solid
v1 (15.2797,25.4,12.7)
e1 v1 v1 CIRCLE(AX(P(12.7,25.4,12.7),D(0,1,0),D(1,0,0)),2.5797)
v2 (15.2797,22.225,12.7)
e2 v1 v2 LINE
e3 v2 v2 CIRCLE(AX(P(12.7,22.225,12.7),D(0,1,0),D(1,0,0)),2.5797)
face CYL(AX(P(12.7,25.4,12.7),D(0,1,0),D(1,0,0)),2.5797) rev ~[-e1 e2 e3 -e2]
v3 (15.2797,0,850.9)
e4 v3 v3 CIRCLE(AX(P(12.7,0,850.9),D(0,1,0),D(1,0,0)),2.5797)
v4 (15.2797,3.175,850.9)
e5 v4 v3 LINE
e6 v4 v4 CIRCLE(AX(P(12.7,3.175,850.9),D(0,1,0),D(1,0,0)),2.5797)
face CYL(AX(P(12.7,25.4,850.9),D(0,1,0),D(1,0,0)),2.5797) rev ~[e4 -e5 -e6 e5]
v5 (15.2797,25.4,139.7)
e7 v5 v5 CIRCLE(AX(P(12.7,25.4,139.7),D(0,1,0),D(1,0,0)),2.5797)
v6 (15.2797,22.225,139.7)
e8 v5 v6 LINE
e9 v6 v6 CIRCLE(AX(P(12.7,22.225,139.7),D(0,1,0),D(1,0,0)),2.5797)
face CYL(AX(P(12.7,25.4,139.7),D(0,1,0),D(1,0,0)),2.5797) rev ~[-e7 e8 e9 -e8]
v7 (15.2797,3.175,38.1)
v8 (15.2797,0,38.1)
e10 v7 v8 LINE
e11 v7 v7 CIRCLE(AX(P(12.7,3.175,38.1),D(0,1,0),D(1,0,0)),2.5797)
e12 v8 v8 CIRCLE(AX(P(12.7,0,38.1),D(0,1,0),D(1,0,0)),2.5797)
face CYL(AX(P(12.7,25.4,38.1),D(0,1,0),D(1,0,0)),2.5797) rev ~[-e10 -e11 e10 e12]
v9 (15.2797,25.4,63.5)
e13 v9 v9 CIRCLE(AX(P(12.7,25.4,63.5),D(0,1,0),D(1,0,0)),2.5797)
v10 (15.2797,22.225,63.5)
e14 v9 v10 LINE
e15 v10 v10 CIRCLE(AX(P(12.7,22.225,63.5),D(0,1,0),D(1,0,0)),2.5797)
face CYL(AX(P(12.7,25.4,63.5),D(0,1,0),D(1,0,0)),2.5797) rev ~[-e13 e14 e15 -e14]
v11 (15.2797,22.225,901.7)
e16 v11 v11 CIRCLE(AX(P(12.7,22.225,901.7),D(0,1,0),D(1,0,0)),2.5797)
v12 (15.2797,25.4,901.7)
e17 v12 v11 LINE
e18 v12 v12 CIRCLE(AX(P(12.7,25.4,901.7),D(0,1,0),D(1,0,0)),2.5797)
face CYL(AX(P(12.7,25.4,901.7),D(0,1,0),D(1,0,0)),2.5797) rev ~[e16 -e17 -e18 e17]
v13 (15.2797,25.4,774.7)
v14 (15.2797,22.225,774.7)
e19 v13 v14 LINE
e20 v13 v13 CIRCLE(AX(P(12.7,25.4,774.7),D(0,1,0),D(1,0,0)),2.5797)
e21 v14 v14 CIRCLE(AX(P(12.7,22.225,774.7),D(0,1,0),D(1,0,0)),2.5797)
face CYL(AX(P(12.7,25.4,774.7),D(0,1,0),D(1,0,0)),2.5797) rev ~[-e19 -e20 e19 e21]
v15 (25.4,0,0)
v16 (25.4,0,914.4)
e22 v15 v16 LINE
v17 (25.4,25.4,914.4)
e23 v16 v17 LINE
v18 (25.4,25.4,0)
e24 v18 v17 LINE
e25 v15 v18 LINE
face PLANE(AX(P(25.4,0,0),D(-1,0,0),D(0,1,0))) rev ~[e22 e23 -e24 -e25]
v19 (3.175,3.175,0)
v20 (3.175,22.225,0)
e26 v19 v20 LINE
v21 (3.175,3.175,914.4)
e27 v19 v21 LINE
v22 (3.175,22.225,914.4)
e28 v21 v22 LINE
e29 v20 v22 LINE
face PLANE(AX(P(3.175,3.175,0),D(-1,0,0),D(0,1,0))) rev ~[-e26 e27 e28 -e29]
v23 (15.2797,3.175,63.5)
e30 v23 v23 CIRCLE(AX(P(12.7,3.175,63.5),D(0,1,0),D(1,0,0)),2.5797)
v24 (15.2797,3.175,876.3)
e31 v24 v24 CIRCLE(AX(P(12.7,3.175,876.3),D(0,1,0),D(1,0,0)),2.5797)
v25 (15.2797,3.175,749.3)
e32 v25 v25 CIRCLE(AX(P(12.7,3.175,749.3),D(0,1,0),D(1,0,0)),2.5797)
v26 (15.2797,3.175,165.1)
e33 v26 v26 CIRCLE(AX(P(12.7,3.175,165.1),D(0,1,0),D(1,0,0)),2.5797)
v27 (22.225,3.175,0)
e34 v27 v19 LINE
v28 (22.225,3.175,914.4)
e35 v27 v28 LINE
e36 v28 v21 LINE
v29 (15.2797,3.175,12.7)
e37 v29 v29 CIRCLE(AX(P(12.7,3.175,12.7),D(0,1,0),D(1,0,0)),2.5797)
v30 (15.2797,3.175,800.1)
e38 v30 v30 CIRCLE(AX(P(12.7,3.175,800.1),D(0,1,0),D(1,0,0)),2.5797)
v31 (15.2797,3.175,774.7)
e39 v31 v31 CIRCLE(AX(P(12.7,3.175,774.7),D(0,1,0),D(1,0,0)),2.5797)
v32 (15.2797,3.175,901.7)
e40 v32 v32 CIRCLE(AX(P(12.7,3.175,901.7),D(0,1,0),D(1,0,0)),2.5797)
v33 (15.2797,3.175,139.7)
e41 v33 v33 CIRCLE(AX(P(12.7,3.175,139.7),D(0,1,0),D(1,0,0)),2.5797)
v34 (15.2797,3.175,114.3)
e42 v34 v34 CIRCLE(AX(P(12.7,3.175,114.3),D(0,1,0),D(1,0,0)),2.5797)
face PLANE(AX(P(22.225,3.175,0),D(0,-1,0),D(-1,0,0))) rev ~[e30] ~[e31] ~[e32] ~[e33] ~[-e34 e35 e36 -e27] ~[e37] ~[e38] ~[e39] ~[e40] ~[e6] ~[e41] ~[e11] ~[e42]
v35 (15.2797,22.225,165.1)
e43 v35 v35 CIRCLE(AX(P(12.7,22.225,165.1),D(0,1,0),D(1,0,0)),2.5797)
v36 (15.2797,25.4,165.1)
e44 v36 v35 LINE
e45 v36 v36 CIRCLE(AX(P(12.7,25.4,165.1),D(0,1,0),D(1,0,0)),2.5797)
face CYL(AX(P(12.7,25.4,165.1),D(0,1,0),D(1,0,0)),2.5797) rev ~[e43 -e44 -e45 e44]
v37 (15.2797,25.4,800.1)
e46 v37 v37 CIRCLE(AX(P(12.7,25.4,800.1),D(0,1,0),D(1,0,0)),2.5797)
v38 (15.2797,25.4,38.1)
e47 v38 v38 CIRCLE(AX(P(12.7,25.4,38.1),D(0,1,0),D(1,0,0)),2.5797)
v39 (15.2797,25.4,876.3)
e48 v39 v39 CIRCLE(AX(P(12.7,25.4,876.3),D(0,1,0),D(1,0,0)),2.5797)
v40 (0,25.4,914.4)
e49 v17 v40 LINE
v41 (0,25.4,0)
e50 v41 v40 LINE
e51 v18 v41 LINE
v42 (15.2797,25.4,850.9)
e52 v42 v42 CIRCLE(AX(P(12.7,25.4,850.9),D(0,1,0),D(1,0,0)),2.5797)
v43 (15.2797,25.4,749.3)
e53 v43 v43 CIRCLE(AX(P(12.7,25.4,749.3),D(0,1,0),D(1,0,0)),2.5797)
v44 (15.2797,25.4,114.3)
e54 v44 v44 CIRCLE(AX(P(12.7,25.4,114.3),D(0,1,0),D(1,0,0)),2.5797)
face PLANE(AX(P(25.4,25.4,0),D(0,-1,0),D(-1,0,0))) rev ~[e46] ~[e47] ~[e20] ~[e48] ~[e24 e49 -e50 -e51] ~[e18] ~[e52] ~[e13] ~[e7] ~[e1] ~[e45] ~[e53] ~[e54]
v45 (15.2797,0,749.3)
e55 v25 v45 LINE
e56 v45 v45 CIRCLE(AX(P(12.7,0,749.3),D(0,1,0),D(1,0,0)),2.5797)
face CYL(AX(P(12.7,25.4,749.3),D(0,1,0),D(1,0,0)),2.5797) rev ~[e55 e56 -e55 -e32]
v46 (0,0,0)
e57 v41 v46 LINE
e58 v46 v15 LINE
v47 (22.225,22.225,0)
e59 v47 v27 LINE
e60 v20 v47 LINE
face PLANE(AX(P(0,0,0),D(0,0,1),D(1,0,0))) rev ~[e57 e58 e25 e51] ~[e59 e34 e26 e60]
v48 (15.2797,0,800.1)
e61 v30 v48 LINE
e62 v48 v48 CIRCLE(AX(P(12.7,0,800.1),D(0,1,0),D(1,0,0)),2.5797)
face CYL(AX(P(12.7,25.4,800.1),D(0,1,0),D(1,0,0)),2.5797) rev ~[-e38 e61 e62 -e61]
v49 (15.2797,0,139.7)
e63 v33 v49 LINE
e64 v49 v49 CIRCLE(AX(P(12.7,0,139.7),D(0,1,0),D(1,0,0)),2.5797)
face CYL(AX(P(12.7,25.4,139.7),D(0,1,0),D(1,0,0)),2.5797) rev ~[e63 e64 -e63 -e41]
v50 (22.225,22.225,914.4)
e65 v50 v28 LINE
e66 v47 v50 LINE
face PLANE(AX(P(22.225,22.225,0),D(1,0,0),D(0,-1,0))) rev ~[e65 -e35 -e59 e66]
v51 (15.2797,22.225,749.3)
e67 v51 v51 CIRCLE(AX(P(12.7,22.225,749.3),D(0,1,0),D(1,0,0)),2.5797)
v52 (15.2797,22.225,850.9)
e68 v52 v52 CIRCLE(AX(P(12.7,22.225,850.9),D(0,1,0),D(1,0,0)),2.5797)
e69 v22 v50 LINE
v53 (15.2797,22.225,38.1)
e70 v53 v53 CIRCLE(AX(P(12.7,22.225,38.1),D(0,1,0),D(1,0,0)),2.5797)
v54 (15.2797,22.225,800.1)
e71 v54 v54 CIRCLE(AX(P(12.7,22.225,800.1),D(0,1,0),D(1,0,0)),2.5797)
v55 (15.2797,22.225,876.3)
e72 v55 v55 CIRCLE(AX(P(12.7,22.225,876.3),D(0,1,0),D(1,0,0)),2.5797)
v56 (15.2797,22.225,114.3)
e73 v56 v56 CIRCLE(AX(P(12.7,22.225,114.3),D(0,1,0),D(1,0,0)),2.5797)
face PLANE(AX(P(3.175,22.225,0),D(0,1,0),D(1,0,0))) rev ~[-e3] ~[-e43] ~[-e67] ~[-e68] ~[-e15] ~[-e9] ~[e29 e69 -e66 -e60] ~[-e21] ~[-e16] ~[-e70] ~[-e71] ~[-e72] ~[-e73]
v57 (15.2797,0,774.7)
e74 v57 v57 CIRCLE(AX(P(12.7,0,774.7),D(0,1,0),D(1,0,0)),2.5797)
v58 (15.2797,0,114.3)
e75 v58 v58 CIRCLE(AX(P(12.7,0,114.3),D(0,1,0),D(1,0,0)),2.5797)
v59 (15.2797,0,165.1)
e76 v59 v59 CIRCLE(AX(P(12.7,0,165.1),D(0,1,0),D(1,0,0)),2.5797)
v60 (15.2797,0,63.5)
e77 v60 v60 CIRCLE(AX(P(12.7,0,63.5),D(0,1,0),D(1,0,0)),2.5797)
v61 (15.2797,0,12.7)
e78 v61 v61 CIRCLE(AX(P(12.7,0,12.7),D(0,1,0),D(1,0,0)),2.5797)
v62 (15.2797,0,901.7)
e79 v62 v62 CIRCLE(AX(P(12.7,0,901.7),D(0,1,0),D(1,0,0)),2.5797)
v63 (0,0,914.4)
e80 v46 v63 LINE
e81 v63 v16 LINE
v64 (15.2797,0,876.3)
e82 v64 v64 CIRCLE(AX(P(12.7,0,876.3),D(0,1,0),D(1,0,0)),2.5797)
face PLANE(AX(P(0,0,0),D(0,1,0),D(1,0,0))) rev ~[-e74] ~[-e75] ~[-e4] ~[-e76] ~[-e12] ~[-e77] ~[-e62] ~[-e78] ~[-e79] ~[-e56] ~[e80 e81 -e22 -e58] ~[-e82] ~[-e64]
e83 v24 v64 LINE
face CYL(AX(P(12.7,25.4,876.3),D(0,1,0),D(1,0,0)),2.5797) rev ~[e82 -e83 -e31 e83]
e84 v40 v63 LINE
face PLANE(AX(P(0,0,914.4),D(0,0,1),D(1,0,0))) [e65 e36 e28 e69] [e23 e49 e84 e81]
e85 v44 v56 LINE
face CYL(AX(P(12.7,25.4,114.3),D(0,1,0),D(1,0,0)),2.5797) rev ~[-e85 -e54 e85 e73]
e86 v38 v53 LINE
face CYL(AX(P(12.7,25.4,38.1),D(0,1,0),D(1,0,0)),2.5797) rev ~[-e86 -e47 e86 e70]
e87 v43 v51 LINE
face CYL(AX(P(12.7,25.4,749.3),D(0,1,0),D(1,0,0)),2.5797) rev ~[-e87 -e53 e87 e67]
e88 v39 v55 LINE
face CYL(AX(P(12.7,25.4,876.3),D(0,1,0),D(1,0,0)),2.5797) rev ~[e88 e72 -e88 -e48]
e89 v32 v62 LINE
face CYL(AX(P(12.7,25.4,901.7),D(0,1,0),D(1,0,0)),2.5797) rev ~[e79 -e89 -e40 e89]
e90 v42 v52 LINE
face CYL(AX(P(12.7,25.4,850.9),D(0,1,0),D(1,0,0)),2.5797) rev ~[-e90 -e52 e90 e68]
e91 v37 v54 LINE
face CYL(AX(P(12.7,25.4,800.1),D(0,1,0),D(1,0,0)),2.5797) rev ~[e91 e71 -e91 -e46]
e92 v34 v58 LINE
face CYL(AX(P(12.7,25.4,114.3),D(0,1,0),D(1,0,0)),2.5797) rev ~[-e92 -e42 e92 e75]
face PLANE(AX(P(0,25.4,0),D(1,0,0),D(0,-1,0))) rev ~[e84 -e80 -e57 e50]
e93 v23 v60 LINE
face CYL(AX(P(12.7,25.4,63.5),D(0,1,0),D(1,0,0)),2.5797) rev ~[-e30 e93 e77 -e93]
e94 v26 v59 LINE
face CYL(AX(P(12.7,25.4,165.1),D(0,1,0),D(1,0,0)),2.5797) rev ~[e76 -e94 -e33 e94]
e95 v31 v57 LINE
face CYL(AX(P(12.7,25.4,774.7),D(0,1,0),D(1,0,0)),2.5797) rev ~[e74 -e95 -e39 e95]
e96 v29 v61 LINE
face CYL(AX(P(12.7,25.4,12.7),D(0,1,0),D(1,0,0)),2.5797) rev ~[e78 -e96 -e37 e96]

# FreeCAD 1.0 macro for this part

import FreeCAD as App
import Part
import Sketcher

V = App.Vector
Q = App.Units.Quantity


def add_polygon(sketch, points):
    """Adds a closed chain of lines whose ends are joined by coincident constraints."""
    first, n = sketch.GeometryCount, len(points)
    for a, b in zip(points, points[1:] + points[:1]):
        sketch.addGeometry(Part.LineSegment(App.Vector(*a, 0), App.Vector(*b, 0)), False)
    for i in range(n):
        sketch.addConstraint(Sketcher.Constraint("Coincident", first + i, 2, first + (i + 1) % n, 1))

doc = App.newDocument("Part")
body = doc.addObject("PartDesign::Body", "Body")

# Sketch on XY plane
sketch1 = body.newObject("Sketcher::SketchObject", "Sketch")
sketch1.AttachmentSupport = (doc.getObject("XY_Plane"), [""])
sketch1.MapMode = "FlatFace"
add_polygon(sketch1, [(0, 25), (0, 0), (25, 0), (25, 25)])  # lines 0-3
add_polygon(sketch1, [(3, 3), (3, 22), (22, 22), (22, 3)])  # lines 4-7
sketch1.addConstraint([
    Sketcher.Constraint("Vertical", 0),
    Sketcher.Constraint("Horizontal", 1),
    Sketcher.Constraint("Vertical", 2),
    Sketcher.Constraint("Horizontal", 3),
    Sketcher.Constraint("Vertical", 4),
    Sketcher.Constraint("Horizontal", 5),
    Sketcher.Constraint("Vertical", 6),
    Sketcher.Constraint("Horizontal", 7),
    Sketcher.Constraint("Coincident", 0, 2, -1, 1),
    Sketcher.Constraint("Equal", 3, 0),
    Sketcher.Constraint("Equal", 7, 4),
    Sketcher.Constraint("DistanceX", 1, 1, 1, 2, Q("1 in")),
    Sketcher.Constraint("DistanceX", -1, 1, 4, 2, Q("0.125 in")),
    Sketcher.Constraint("DistanceY", -1, 1, 6, 2, Q("0.125 in")),
    Sketcher.Constraint("DistanceY", 4, 2, 3, 2, Q("0.125 in")),
])
pad1 = body.newObject("PartDesign::Pad", "Pad")
pad1.Profile = sketch1
pad1.Length = Q("36 in")

# Sketch on XZ plane
sketch2 = body.newObject("Sketcher::SketchObject", "Sketch001")
sketch2.AttachmentSupport = (doc.getObject("XZ_Plane"), [""])
sketch2.MapMode = "FlatFace"
sketch2.AttachmentOffset = App.Placement(V(0, 0, -1 * 25.4), App.Rotation())
sketch2.addGeometry([
    Part.Circle(V(12.7, 139.7, 0), V(0, 0, 1), 2.6),  # 0
    Part.Circle(V(12.7, 114.3, 0), V(0, 0, 1), 2.6),  # 1
    Part.Circle(V(12.7, 165.1, 0), V(0, 0, 1), 2.6),  # 2
    Part.Circle(V(12.7, 63.5, 0), V(0, 0, 1), 2.6),  # 3
    Part.Circle(V(12.7, 38.1, 0), V(0, 0, 1), 2.6),  # 4
    Part.Circle(V(12.7, 12.7, 0), V(0, 0, 1), 2.6),  # 5
    Part.Circle(V(12.7, 774.7, 0), V(0, 0, 1), 2.6),  # 6
    Part.Circle(V(12.7, 800.1, 0), V(0, 0, 1), 2.6),  # 7
    Part.Circle(V(12.7, 749.3, 0), V(0, 0, 1), 2.6),  # 8
    Part.Circle(V(12.7, 850.9, 0), V(0, 0, 1), 2.6),  # 9
    Part.Circle(V(12.7, 876.3, 0), V(0, 0, 1), 2.6),  # 10
    Part.Circle(V(12.7, 901.7, 0), V(0, 0, 1), 2.6),  # 11
], False)
sketch2.addConstraint([
    Sketcher.Constraint("Equal", 0, 1),
    Sketcher.Constraint("Equal", 1, 2),
    Sketcher.Constraint("Equal", 2, 3),
    Sketcher.Constraint("Equal", 3, 4),
    Sketcher.Constraint("Equal", 4, 5),
    Sketcher.Constraint("Equal", 5, 6),
    Sketcher.Constraint("Equal", 6, 7),
    Sketcher.Constraint("Equal", 7, 8),
    Sketcher.Constraint("Equal", 8, 9),
    Sketcher.Constraint("Equal", 9, 10),
    Sketcher.Constraint("Equal", 10, 11),
    Sketcher.Constraint("Vertical", 0, 3, 1, 3),
    Sketcher.Constraint("Vertical", 1, 3, 2, 3),
    Sketcher.Constraint("Vertical", 2, 3, 3, 3),
    Sketcher.Constraint("Vertical", 3, 3, 4, 3),
    Sketcher.Constraint("Vertical", 4, 3, 5, 3),
    Sketcher.Constraint("Vertical", 5, 3, 6, 3),
    Sketcher.Constraint("Vertical", 6, 3, 7, 3),
    Sketcher.Constraint("Vertical", 7, 3, 8, 3),
    Sketcher.Constraint("Vertical", 8, 3, 9, 3),
    Sketcher.Constraint("Vertical", 9, 3, 10, 3),
    Sketcher.Constraint("Vertical", 10, 3, 11, 3),
    Sketcher.Constraint("Diameter", 0, Q("0.203126 in")),
    Sketcher.Constraint("DistanceY", 1, 3, 0, 3, Q("1 in")),
    Sketcher.Constraint("DistanceY", 0, 3, 2, 3, Q("1 in")),
    Sketcher.Constraint("DistanceY", 3, 3, 1, 3, Q("2 in")),
    Sketcher.Constraint("DistanceY", 4, 3, 3, 3, Q("1 in")),
    Sketcher.Constraint("DistanceY", 5, 3, 4, 3, Q("1 in")),
    Sketcher.Constraint("DistanceY", 6, 3, 7, 3, Q("1 in")),
    Sketcher.Constraint("DistanceY", 8, 3, 6, 3, Q("1 in")),
    Sketcher.Constraint("DistanceY", 7, 3, 9, 3, Q("2 in")),
    Sketcher.Constraint("DistanceY", 9, 3, 10, 3, Q("1 in")),
    Sketcher.Constraint("DistanceY", 10, 3, 11, 3, Q("1 in")),
    Sketcher.Constraint("DistanceX", -1, 1, 0, 3, Q("0.5 in")),
    Sketcher.Constraint("DistanceY", -1, 1, 0, 3, Q("5.5 in")),
    Sketcher.Constraint("DistanceY", 2, 3, 6, 3, Q("24 in")),
])
pocket1 = body.newObject("PartDesign::Pocket", "Pocket")
pocket1.Profile = sketch2
pocket1.Length = Q("36 in")
pocket1.Reversed = True

doc.recompute()
